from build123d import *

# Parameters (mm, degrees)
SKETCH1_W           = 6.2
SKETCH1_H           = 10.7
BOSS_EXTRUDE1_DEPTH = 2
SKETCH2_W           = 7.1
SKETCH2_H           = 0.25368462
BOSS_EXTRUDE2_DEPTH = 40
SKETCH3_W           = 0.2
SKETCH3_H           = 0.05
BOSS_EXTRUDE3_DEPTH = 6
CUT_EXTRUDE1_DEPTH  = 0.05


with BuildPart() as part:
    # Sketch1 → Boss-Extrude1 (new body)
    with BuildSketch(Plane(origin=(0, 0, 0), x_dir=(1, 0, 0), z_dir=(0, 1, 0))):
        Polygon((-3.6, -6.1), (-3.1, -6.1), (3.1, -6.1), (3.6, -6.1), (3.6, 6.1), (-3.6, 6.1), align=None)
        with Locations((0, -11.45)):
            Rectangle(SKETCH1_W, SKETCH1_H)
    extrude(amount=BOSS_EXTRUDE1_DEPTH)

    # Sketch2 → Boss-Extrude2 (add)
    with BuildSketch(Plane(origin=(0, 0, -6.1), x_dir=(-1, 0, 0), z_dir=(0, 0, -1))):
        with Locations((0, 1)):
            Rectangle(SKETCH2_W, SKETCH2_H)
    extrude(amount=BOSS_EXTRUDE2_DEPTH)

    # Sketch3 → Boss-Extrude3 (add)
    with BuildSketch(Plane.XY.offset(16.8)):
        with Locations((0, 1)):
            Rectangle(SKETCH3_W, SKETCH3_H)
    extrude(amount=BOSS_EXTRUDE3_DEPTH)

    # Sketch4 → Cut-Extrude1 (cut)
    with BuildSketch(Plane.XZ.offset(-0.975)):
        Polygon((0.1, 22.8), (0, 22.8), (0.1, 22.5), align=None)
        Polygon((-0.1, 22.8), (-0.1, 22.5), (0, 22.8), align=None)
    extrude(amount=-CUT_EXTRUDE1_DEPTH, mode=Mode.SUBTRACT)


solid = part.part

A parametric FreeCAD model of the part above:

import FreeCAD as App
import Part
import Sketcher
from FreeCAD import Vector
Q = App.Units.Quantity

doc = App.newDocument("Part")
body = doc.addObject("PartDesign::Body", "Body")

# Sketch on XZ plane
sketch1 = doc.addObject("Sketcher::SketchObject", "Sketch")
body.addObject(sketch1)
sketch1.AttachmentSupport = (doc.XZ_Plane, [""])
sketch1.MapMode = "FlatFace"
sketch1.addGeometry([
    Part.LineSegment(Vector(-3.6, 6.1, 0), Vector(-3.1, 6.1, 0)),  # 0
    Part.LineSegment(Vector(-3.1, 6.1, 0), Vector(-3.1, 16.8, 0)),  # 1
    Part.LineSegment(Vector(-3.1, 16.8, 0), Vector(3.1, 16.8, 0)),  # 2
    Part.LineSegment(Vector(3.1, 16.8, 0), Vector(3.1, 6.1, 0)),  # 3
    Part.LineSegment(Vector(3.1, 6.1, 0), Vector(3.6, 6.1, 0)),  # 4
    Part.LineSegment(Vector(3.6, 6.1, 0), Vector(3.6, -6.1, 0)),  # 5
    Part.LineSegment(Vector(3.6, -6.1, 0), Vector(-3.6, -6.1, 0)),  # 6
    Part.LineSegment(Vector(-3.6, -6.1, 0), Vector(-3.6, 6.1, 0)),  # 7
], False)
sketch1.addConstraint([
    Sketcher.Constraint("Coincident", 0, 2, 1, 1),
    Sketcher.Constraint("Coincident", 1, 2, 2, 1),
    Sketcher.Constraint("Coincident", 2, 2, 3, 1),
    Sketcher.Constraint("Coincident", 3, 2, 4, 1),
    Sketcher.Constraint("Coincident", 4, 2, 5, 1),
    Sketcher.Constraint("Coincident", 5, 2, 6, 1),
    Sketcher.Constraint("Coincident", 6, 2, 7, 1),
    Sketcher.Constraint("Coincident", 7, 2, 0, 1),
    Sketcher.Constraint("Horizontal", 0),
    Sketcher.Constraint("Vertical", 1),
    Sketcher.Constraint("Horizontal", 2),
    Sketcher.Constraint("Vertical", 3),
    Sketcher.Constraint("Horizontal", 4),
    Sketcher.Constraint("Vertical", 5),
    Sketcher.Constraint("Horizontal", 6),
    Sketcher.Constraint("Vertical", 7),
    Sketcher.Constraint("Symmetric", 4, 2, 6, 2, -1, 1),
    Sketcher.Constraint("Symmetric", 0, 2, 3, 2, -2),
    Sketcher.Constraint("DistanceX", 0, 1, 0, 2, Q("0.5 mm")),
    Sketcher.Constraint("DistanceX", 2, 1, 2, 2, Q("6.2 mm")),
    Sketcher.Constraint("DistanceY", 1, 1, 1, 2, Q("10.7 mm")),
    Sketcher.Constraint("DistanceY", 5, 2, 5, 1, Q("12.2 mm")),
])
pad1 = doc.addObject("PartDesign::Pad", "Pad")
body.addObject(pad1)
pad1.Profile = sketch1
pad1.Length = 2
pad1.Reversed = True

# Sketch on XY plane
sketch2 = doc.addObject("Sketcher::SketchObject", "Sketch001")
body.addObject(sketch2)
sketch2.AttachmentSupport = (doc.XY_Plane, [""])
sketch2.MapMode = "FlatFace"
sketch2.AttachmentOffset = App.Placement(Vector(0, 0, -6.1), App.Rotation())
sketch2.addGeometry([
    Part.LineSegment(Vector(3.55, 1.13, 0), Vector(3.55, 0.87, 0)),
    Part.LineSegment(Vector(3.55, 0.87, 0), Vector(-3.55, 0.87, 0)),
    Part.LineSegment(Vector(-3.55, 0.87, 0), Vector(-3.55, 1.13, 0)),
    Part.LineSegment(Vector(-3.55, 1.13, 0), Vector(3.55, 1.13, 0)),
], False)
sketch2.addConstraint([
    Sketcher.Constraint("Coincident", 0, 2, 1, 1),
    Sketcher.Constraint("Coincident", 1, 2, 2, 1),
    Sketcher.Constraint("Coincident", 2, 2, 3, 1),
    Sketcher.Constraint("Coincident", 3, 2, 0, 1),
    Sketcher.Constraint("Vertical", 0),
    Sketcher.Constraint("Horizontal", 1),
    Sketcher.Constraint("Vertical", 2),
    Sketcher.Constraint("Horizontal", 3),
    Sketcher.Constraint("DistanceX", 1, 2, 1, 1, Q("7.1 mm")),
    Sketcher.Constraint("DistanceX", -1, 1, 0, 2, Q("3.55 mm")),
    Sketcher.Constraint("DistanceY", 0, 2, 0, 1, Q("0.253685 mm")),
    Sketcher.Constraint("DistanceY", -1, 1, 0, 2, Q("0.873158 mm")),
])
pad2 = doc.addObject("PartDesign::Pad", "Pad001")
body.addObject(pad2)
pad2.Profile = sketch2
pad2.Length = 40
pad2.Reversed = True

# Sketch on XY plane
sketch3 = doc.addObject("Sketcher::SketchObject", "Sketch002")
body.addObject(sketch3)
sketch3.AttachmentSupport = (doc.XY_Plane, [""])
sketch3.MapMode = "FlatFace"
sketch3.AttachmentOffset = App.Placement(Vector(0, 0, 16.8), App.Rotation())
sketch3.addGeometry([
    Part.LineSegment(Vector(-0.1, 1.025, 0), Vector(-0.1, 0.975, 0)),
    Part.LineSegment(Vector(-0.1, 0.975, 0), Vector(0.1, 0.975, 0)),
    Part.LineSegment(Vector(0.1, 0.975, 0), Vector(0.1, 1.025, 0)),
    Part.LineSegment(Vector(0.1, 1.025, 0), Vector(-0.1, 1.025, 0)),
], False)
sketch3.addConstraint([
    Sketcher.Constraint("Coincident", 0, 2, 1, 1),
    Sketcher.Constraint("Coincident", 1, 2, 2, 1),
    Sketcher.Constraint("Coincident", 2, 2, 3, 1),
    Sketcher.Constraint("Coincident", 3, 2, 0, 1),
    Sketcher.Constraint("Vertical", 0),
    Sketcher.Constraint("Horizontal", 1),
    Sketcher.Constraint("Vertical", 2),
    Sketcher.Constraint("Horizontal", 3),
    Sketcher.Constraint("DistanceX", 1, 1, 1, 2, Q("0.2 mm")),
    Sketcher.Constraint("DistanceY", 0, 2, 0, 1, Q("0.05 mm")),
    Sketcher.Constraint("DistanceX", 0, 2, -1, 1, Q("0.1 mm")),
    Sketcher.Constraint("DistanceY", -1, 1, 0, 2, Q("0.975 mm")),
])
pad3 = doc.addObject("PartDesign::Pad", "Pad002")
body.addObject(pad3)
pad3.Profile = sketch3
pad3.Length = 6

# Sketch on XZ plane
sketch4 = doc.addObject("Sketcher::SketchObject", "Sketch003")
body.addObject(sketch4)
sketch4.AttachmentSupport = (doc.XZ_Plane, [""])
sketch4.MapMode = "FlatFace"
sketch4.AttachmentOffset = App.Placement(Vector(0, 0, -0.975), App.Rotation())
sketch4.addGeometry([
    Part.LineSegment(Vector(0.1, 22.8, 0), Vector(0, 22.8, 0)),  # 0
    Part.LineSegment(Vector(0, 22.8, 0), Vector(0.1, 22.5, 0)),  # 1
    Part.LineSegment(Vector(0.1, 22.5, 0), Vector(0.1, 22.8, 0)),  # 2
    Part.LineSegment(Vector(-0.1, 22.8, 0), Vector(-0.1, 22.5, 0)),  # 3
    Part.LineSegment(Vector(-0.1, 22.5, 0), Vector(0, 22.8, 0)),  # 4
    Part.LineSegment(Vector(0, 22.8, 0), Vector(-0.1, 22.8, 0)),  # 5
], False)
sketch4.addConstraint([
    Sketcher.Constraint("Coincident", 0, 2, 1, 1),
    Sketcher.Constraint("Coincident", 1, 2, 2, 1),
    Sketcher.Constraint("Coincident", 2, 2, 0, 1),
    Sketcher.Constraint("Coincident", 3, 2, 4, 1),
    Sketcher.Constraint("Coincident", 4, 2, 5, 1),
    Sketcher.Constraint("Coincident", 5, 2, 3, 1),
    Sketcher.Constraint("Horizontal", 0),
    Sketcher.Constraint("Vertical", 2),
    Sketcher.Constraint("Vertical", 3),
    Sketcher.Constraint("Horizontal", 5),
    Sketcher.Constraint("Coincident", 4, 2, 0, 2),
    Sketcher.Constraint("Symmetric", 1, 2, 3, 2, -2),
    Sketcher.Constraint("PointOnObject", 0, 2, -2),
    Sketcher.Constraint("DistanceX", 0, 2, 0, 1, Q("0.1 mm")),
    Sketcher.Constraint("DistanceY", 2, 1, 2, 2, Q("0.3 mm")),
    Sketcher.Constraint("DistanceY", -1, 1, 0, 2, Q("22.8 mm")),
])
pocket1 = doc.addObject("PartDesign::Pocket", "Pocket")
body.addObject(pocket1)
pocket1.Profile = sketch4
pocket1.Length = 0.05

doc.recompute()
